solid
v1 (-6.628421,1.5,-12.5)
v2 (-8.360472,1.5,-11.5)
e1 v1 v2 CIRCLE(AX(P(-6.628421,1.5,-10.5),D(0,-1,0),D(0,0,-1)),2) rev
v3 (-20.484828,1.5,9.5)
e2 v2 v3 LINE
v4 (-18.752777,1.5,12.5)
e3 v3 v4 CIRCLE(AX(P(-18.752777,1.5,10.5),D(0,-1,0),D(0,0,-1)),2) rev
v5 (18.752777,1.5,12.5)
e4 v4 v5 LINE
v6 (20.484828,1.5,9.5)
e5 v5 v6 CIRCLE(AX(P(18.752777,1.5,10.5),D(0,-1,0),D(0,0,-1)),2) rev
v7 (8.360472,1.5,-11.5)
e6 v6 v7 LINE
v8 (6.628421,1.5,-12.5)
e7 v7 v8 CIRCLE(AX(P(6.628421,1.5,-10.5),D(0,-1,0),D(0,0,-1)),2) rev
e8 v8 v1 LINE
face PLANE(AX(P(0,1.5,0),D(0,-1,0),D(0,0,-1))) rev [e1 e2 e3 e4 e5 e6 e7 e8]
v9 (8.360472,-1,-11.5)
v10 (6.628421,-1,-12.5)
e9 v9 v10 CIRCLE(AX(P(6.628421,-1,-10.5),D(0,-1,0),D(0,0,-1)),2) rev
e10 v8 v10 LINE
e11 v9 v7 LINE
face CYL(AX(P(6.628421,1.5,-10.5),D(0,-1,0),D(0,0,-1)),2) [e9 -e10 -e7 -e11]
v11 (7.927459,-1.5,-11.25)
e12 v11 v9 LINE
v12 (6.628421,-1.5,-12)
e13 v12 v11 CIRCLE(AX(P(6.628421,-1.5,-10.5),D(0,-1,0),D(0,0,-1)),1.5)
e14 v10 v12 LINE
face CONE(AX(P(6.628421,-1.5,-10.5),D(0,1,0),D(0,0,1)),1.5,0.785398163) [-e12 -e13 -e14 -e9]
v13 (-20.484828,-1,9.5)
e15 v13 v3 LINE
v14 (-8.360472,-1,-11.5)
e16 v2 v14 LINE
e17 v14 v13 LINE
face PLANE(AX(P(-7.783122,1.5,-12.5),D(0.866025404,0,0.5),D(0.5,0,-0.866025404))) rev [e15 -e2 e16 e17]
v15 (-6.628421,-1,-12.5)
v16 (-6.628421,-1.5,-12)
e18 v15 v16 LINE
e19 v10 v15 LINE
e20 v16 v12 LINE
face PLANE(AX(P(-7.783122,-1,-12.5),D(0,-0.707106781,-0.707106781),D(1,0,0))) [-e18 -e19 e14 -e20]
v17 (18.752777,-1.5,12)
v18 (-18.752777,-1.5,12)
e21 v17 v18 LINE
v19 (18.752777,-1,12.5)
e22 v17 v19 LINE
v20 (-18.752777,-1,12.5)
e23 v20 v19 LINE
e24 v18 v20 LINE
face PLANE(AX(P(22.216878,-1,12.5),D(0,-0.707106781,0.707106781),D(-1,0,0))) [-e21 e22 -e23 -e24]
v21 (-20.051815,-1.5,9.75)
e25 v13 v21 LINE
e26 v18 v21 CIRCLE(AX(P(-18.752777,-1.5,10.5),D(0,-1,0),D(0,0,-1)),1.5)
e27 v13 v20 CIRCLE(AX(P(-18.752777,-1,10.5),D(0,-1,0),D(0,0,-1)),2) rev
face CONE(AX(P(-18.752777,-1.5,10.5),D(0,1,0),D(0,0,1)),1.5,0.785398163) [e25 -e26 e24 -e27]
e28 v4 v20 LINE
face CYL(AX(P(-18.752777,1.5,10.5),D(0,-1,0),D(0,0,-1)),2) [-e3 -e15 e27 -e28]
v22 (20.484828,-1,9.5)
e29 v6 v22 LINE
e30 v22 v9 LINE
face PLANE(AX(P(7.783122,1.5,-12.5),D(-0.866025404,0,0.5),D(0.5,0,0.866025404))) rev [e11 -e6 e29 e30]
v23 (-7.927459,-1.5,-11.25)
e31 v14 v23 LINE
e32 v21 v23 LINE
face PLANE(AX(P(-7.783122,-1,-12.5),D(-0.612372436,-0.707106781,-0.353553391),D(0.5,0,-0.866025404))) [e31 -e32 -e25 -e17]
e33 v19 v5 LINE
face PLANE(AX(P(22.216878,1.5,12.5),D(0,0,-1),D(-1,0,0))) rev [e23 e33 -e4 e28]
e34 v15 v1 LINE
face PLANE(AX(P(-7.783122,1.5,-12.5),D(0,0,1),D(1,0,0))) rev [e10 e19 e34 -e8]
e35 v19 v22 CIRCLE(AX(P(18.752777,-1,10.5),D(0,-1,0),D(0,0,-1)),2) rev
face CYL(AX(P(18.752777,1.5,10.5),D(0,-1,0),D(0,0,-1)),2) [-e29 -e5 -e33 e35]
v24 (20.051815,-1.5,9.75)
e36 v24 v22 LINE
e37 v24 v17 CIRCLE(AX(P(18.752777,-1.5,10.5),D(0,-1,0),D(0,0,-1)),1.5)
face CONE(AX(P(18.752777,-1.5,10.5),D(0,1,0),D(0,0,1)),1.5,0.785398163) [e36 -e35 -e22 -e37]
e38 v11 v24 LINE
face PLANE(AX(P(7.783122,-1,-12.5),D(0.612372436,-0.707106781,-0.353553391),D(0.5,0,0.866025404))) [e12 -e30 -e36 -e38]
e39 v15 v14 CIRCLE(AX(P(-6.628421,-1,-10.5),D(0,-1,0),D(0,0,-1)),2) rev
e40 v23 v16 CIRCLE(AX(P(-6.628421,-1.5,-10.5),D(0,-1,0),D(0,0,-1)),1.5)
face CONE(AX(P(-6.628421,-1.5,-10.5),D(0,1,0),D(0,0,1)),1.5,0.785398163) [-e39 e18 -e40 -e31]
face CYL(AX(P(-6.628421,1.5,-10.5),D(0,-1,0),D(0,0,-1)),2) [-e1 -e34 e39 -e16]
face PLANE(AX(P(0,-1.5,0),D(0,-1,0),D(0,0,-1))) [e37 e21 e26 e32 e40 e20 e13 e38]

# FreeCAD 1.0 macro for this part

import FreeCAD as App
import Part
import Sketcher
from FreeCAD import Vector
Q = App.Units.Quantity


def edges_at(feature, points):
    """Names of the edges that pass closest to the given points."""
    edges = feature.Shape.Edges
    near = lambda p: min(range(len(edges)), key=lambda i: edges[i].distToShape(Part.Vertex(*p))[0])
    return sorted({f"Edge{near(p) + 1}" for p in points})

doc = App.newDocument("Part")
body = doc.addObject("PartDesign::Body", "Body")

sketch1 = body.newObject("Sketcher::SketchObject", "Sketch")
sketch1.AttachmentSupport = (doc.getObject("XZ_Plane"), [""])
sketch1.MapMode = "FlatFace"
sketch1.addGeometry([
    Part.LineSegment(Vector(22, 12, 0), Vector(8, -12, 0)),
    Part.LineSegment(Vector(8, -12, 0), Vector(-8, -12, 0)),
    Part.LineSegment(Vector(-8, -12, 0), Vector(-22, 12, 0)),
    Part.LineSegment(Vector(-22, 12, 0), Vector(22, 12, 0)),
], False)
sketch1.addConstraint([
    Sketcher.Constraint("Coincident", 0, 2, 1, 1),
    Sketcher.Constraint("Coincident", 1, 2, 2, 1),
    Sketcher.Constraint("Coincident", 2, 2, 3, 1),
    Sketcher.Constraint("Coincident", 3, 2, 0, 1),
    Sketcher.Constraint("Horizontal", 1),
    Sketcher.Constraint("Horizontal", 3),
    Sketcher.Constraint("Equal", 0, 2),
    Sketcher.Constraint("Angle", 0, Q("-120 deg")),
    Sketcher.Constraint("DistanceY", 1, 2, 2, 2, Q("25 mm")),
    Sketcher.Constraint("DistanceX", 2, 2, 0, 2, Q("30 mm")),
    Sketcher.Constraint("DistanceY", 0, 2, -1, 1, Q("12.5 mm")),
    Sketcher.Constraint("DistanceX", -1, 1, 0, 2, Q("7.783122 mm")),
])
pad1 = body.newObject("PartDesign::Pad", "Pad")
pad1.Profile = sketch1
pad1.Length = 3
pad1.Midplane = True
doc.recompute()

fillet = body.newObject("PartDesign::Fillet", "Fillet")
fillet.Base = (pad1, edges_at(pad1, [
    (-22.217, 0, 12.5),
    (-7.783, 0, -12.5),
    (7.783, 0, -12.5),
    (22.217, 0, 12.5),
]))
fillet.Radius = 2
doc.recompute()

chamfer = body.newObject("PartDesign::Chamfer", "Chamfer")
chamfer.Base = (fillet, edges_at(fillet, [
    (-14.423, -1.5, -1),
    (0, -1.5, 12.5),
    (0, -1.5, -12.5),
    (14.423, -1.5, -1),
    (-20.485, -1.5, 11.5),
    (20.485, -1.5, 11.5),
    (7.628, -1.5, -12.232),
    (-7.628, -1.5, -12.232),
]))
chamfer.Size = 0.5

doc.recompute()
